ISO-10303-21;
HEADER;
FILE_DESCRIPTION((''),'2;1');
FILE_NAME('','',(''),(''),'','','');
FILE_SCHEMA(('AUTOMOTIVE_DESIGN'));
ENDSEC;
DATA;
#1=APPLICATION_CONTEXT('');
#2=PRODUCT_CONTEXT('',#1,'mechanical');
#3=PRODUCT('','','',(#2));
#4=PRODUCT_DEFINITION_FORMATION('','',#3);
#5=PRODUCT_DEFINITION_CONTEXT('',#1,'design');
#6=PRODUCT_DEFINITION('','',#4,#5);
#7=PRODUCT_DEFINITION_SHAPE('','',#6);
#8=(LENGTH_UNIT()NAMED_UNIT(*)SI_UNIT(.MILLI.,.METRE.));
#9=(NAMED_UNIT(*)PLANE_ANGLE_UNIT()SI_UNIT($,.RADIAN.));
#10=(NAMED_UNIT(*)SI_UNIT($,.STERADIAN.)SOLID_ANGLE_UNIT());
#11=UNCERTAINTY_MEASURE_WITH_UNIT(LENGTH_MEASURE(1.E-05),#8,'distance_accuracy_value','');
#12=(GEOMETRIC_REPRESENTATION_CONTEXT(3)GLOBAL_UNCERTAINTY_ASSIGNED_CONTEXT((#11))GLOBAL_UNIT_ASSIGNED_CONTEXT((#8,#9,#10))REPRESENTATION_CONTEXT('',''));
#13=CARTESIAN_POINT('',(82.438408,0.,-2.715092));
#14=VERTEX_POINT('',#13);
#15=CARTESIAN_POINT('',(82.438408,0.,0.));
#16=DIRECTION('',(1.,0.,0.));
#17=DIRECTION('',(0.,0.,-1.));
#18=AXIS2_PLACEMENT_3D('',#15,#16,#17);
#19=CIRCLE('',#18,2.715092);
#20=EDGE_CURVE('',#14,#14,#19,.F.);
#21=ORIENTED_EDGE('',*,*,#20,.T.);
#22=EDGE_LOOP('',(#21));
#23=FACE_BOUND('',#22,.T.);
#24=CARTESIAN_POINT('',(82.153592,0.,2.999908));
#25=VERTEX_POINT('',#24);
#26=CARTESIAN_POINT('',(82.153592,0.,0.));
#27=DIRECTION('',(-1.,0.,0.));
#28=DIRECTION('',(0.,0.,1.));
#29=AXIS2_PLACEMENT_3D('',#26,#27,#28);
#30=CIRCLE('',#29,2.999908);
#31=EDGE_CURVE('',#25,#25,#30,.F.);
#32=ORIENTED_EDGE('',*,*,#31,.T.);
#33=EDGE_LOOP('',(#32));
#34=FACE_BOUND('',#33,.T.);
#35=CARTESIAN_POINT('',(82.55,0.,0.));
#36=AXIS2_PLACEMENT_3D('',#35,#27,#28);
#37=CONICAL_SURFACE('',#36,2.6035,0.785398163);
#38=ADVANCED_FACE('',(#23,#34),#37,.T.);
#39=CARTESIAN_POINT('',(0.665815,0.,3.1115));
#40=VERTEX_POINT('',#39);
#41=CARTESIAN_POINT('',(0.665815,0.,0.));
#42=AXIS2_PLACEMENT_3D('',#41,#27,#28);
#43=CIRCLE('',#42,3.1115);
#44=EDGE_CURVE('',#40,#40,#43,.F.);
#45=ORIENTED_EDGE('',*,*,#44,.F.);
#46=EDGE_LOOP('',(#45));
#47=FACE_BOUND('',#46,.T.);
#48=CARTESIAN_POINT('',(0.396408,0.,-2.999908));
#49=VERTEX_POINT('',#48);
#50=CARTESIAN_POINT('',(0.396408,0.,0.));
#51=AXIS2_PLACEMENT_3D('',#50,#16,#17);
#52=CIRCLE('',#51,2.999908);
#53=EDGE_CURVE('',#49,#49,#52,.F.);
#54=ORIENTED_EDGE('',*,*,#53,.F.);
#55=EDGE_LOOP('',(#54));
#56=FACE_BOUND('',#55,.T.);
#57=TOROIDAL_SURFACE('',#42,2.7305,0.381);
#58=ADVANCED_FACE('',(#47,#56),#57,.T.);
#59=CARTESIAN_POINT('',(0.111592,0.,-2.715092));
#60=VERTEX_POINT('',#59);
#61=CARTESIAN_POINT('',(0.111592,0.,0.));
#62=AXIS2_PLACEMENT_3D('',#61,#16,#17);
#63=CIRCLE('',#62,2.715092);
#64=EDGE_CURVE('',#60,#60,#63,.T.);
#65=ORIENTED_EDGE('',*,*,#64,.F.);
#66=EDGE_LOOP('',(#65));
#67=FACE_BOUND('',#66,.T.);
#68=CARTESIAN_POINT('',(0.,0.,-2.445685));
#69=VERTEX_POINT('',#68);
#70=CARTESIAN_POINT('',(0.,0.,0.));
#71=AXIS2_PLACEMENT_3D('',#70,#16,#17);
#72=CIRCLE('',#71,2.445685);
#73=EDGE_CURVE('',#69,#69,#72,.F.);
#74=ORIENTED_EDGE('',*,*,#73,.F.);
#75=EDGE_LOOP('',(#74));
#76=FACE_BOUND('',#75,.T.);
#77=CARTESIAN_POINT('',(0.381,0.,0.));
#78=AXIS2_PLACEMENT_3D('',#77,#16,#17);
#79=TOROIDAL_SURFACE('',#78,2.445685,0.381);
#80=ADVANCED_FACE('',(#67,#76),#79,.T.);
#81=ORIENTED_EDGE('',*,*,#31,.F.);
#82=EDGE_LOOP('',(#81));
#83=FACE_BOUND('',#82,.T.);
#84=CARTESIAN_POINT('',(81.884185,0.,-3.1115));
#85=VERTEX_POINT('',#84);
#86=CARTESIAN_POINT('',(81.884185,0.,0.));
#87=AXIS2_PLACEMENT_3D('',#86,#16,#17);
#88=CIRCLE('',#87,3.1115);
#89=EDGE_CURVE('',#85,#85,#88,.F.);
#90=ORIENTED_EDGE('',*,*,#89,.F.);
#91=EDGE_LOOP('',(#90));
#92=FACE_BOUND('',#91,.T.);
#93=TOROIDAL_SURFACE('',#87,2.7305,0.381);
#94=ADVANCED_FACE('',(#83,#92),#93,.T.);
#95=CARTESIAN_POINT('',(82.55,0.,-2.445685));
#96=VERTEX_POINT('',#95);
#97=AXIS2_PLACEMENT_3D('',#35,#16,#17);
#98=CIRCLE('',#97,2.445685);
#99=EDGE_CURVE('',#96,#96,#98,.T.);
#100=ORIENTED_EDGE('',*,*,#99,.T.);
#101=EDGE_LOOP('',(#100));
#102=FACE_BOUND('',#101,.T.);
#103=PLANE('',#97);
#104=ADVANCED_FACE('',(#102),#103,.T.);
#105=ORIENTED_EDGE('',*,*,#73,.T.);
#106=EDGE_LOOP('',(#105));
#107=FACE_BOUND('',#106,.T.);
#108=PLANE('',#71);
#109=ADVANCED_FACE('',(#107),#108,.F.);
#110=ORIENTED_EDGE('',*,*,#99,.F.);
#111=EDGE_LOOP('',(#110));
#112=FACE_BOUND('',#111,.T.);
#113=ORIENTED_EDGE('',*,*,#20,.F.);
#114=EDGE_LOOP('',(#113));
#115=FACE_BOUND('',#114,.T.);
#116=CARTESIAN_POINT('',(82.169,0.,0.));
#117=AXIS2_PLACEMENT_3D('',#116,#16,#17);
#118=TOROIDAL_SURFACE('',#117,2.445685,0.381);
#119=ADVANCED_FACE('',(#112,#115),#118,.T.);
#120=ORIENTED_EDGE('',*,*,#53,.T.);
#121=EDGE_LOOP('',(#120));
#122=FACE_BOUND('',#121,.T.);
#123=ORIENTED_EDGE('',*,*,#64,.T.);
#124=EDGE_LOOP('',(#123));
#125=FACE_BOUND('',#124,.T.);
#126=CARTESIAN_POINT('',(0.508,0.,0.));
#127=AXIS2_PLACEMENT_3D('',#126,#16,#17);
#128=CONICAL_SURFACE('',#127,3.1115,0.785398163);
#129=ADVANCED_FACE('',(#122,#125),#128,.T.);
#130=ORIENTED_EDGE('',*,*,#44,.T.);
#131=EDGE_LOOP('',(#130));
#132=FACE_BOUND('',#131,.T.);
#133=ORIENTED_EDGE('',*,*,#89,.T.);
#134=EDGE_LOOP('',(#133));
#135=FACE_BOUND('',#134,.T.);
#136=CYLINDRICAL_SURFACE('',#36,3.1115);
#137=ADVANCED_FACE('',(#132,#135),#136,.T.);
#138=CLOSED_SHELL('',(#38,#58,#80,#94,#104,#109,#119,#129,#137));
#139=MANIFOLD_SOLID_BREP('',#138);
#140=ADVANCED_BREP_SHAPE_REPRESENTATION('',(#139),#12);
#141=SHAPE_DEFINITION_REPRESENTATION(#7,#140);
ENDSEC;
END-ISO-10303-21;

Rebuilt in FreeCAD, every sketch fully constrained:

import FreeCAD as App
import Part
import Sketcher
from FreeCAD import Vector
Q = App.Units.Quantity


def edges_at(feature, points):
    """Names of the edges that pass closest to the given points."""
    edges = feature.Shape.Edges
    near = lambda p: min(range(len(edges)), key=lambda i: edges[i].distToShape(Part.Vertex(*p))[0])
    return sorted({f"Edge{near(p) + 1}" for p in points})

doc = App.newDocument("Part")
params = doc.addObject("Spreadsheet::Sheet", "Params")
for row, (alias, value) in enumerate([
    ("sketch1_diameter", "0.245 in"),
    ("pad1_length", "3.25 in"),
    ("chamfer_size", "0.02 in"),
    ("fillet_radius", "0.015 in"),
], start=1):
    params.set(f"A{row}", alias)
    params.set(f"B{row}", "=" + value)
    params.setAlias(f"B{row}", alias)

body = doc.addObject("PartDesign::Body", "Body")

# Sketch on YZ plane
sketch1 = body.newObject("Sketcher::SketchObject", "Sketch")
sketch1.AttachmentSupport = (doc.getObject("YZ_Plane"), [""])
sketch1.MapMode = "FlatFace"
sketch1.addGeometry(Part.Circle(Vector(0, 0, 0), Vector(0, 0, 1), 3.1115), False)
sketch1.addConstraint([
    Sketcher.Constraint("Coincident", 0, 3, -1, 1),
    Sketcher.Constraint("Diameter", 0, Q("0.245 in")),
])
sketch1.setExpression("Constraints[1]", "Params.sketch1_diameter")
pad1 = body.newObject("PartDesign::Pad", "Pad")
pad1.Profile = sketch1
pad1.setExpression("Length", "Params.pad1_length")
doc.recompute()

chamfer = body.newObject("PartDesign::Chamfer", "Chamfer")
chamfer.Base = (pad1, edges_at(pad1, [(0, 0, 3.111), (82.55, 0, 3.111)]))
chamfer.setExpression("Size", "Params.chamfer_size")
doc.recompute()

fillet = body.newObject("PartDesign::Fillet", "Fillet")
fillet.Base = (chamfer, edges_at(chamfer, [
    (82.55, 0, 2.603),
    (0.508, 0, 3.111),
    (82.042, 0, 3.111),
    (0, 0, 2.603),
]))
fillet.setExpression("Radius", "Params.fillet_radius")

doc.recompute()
